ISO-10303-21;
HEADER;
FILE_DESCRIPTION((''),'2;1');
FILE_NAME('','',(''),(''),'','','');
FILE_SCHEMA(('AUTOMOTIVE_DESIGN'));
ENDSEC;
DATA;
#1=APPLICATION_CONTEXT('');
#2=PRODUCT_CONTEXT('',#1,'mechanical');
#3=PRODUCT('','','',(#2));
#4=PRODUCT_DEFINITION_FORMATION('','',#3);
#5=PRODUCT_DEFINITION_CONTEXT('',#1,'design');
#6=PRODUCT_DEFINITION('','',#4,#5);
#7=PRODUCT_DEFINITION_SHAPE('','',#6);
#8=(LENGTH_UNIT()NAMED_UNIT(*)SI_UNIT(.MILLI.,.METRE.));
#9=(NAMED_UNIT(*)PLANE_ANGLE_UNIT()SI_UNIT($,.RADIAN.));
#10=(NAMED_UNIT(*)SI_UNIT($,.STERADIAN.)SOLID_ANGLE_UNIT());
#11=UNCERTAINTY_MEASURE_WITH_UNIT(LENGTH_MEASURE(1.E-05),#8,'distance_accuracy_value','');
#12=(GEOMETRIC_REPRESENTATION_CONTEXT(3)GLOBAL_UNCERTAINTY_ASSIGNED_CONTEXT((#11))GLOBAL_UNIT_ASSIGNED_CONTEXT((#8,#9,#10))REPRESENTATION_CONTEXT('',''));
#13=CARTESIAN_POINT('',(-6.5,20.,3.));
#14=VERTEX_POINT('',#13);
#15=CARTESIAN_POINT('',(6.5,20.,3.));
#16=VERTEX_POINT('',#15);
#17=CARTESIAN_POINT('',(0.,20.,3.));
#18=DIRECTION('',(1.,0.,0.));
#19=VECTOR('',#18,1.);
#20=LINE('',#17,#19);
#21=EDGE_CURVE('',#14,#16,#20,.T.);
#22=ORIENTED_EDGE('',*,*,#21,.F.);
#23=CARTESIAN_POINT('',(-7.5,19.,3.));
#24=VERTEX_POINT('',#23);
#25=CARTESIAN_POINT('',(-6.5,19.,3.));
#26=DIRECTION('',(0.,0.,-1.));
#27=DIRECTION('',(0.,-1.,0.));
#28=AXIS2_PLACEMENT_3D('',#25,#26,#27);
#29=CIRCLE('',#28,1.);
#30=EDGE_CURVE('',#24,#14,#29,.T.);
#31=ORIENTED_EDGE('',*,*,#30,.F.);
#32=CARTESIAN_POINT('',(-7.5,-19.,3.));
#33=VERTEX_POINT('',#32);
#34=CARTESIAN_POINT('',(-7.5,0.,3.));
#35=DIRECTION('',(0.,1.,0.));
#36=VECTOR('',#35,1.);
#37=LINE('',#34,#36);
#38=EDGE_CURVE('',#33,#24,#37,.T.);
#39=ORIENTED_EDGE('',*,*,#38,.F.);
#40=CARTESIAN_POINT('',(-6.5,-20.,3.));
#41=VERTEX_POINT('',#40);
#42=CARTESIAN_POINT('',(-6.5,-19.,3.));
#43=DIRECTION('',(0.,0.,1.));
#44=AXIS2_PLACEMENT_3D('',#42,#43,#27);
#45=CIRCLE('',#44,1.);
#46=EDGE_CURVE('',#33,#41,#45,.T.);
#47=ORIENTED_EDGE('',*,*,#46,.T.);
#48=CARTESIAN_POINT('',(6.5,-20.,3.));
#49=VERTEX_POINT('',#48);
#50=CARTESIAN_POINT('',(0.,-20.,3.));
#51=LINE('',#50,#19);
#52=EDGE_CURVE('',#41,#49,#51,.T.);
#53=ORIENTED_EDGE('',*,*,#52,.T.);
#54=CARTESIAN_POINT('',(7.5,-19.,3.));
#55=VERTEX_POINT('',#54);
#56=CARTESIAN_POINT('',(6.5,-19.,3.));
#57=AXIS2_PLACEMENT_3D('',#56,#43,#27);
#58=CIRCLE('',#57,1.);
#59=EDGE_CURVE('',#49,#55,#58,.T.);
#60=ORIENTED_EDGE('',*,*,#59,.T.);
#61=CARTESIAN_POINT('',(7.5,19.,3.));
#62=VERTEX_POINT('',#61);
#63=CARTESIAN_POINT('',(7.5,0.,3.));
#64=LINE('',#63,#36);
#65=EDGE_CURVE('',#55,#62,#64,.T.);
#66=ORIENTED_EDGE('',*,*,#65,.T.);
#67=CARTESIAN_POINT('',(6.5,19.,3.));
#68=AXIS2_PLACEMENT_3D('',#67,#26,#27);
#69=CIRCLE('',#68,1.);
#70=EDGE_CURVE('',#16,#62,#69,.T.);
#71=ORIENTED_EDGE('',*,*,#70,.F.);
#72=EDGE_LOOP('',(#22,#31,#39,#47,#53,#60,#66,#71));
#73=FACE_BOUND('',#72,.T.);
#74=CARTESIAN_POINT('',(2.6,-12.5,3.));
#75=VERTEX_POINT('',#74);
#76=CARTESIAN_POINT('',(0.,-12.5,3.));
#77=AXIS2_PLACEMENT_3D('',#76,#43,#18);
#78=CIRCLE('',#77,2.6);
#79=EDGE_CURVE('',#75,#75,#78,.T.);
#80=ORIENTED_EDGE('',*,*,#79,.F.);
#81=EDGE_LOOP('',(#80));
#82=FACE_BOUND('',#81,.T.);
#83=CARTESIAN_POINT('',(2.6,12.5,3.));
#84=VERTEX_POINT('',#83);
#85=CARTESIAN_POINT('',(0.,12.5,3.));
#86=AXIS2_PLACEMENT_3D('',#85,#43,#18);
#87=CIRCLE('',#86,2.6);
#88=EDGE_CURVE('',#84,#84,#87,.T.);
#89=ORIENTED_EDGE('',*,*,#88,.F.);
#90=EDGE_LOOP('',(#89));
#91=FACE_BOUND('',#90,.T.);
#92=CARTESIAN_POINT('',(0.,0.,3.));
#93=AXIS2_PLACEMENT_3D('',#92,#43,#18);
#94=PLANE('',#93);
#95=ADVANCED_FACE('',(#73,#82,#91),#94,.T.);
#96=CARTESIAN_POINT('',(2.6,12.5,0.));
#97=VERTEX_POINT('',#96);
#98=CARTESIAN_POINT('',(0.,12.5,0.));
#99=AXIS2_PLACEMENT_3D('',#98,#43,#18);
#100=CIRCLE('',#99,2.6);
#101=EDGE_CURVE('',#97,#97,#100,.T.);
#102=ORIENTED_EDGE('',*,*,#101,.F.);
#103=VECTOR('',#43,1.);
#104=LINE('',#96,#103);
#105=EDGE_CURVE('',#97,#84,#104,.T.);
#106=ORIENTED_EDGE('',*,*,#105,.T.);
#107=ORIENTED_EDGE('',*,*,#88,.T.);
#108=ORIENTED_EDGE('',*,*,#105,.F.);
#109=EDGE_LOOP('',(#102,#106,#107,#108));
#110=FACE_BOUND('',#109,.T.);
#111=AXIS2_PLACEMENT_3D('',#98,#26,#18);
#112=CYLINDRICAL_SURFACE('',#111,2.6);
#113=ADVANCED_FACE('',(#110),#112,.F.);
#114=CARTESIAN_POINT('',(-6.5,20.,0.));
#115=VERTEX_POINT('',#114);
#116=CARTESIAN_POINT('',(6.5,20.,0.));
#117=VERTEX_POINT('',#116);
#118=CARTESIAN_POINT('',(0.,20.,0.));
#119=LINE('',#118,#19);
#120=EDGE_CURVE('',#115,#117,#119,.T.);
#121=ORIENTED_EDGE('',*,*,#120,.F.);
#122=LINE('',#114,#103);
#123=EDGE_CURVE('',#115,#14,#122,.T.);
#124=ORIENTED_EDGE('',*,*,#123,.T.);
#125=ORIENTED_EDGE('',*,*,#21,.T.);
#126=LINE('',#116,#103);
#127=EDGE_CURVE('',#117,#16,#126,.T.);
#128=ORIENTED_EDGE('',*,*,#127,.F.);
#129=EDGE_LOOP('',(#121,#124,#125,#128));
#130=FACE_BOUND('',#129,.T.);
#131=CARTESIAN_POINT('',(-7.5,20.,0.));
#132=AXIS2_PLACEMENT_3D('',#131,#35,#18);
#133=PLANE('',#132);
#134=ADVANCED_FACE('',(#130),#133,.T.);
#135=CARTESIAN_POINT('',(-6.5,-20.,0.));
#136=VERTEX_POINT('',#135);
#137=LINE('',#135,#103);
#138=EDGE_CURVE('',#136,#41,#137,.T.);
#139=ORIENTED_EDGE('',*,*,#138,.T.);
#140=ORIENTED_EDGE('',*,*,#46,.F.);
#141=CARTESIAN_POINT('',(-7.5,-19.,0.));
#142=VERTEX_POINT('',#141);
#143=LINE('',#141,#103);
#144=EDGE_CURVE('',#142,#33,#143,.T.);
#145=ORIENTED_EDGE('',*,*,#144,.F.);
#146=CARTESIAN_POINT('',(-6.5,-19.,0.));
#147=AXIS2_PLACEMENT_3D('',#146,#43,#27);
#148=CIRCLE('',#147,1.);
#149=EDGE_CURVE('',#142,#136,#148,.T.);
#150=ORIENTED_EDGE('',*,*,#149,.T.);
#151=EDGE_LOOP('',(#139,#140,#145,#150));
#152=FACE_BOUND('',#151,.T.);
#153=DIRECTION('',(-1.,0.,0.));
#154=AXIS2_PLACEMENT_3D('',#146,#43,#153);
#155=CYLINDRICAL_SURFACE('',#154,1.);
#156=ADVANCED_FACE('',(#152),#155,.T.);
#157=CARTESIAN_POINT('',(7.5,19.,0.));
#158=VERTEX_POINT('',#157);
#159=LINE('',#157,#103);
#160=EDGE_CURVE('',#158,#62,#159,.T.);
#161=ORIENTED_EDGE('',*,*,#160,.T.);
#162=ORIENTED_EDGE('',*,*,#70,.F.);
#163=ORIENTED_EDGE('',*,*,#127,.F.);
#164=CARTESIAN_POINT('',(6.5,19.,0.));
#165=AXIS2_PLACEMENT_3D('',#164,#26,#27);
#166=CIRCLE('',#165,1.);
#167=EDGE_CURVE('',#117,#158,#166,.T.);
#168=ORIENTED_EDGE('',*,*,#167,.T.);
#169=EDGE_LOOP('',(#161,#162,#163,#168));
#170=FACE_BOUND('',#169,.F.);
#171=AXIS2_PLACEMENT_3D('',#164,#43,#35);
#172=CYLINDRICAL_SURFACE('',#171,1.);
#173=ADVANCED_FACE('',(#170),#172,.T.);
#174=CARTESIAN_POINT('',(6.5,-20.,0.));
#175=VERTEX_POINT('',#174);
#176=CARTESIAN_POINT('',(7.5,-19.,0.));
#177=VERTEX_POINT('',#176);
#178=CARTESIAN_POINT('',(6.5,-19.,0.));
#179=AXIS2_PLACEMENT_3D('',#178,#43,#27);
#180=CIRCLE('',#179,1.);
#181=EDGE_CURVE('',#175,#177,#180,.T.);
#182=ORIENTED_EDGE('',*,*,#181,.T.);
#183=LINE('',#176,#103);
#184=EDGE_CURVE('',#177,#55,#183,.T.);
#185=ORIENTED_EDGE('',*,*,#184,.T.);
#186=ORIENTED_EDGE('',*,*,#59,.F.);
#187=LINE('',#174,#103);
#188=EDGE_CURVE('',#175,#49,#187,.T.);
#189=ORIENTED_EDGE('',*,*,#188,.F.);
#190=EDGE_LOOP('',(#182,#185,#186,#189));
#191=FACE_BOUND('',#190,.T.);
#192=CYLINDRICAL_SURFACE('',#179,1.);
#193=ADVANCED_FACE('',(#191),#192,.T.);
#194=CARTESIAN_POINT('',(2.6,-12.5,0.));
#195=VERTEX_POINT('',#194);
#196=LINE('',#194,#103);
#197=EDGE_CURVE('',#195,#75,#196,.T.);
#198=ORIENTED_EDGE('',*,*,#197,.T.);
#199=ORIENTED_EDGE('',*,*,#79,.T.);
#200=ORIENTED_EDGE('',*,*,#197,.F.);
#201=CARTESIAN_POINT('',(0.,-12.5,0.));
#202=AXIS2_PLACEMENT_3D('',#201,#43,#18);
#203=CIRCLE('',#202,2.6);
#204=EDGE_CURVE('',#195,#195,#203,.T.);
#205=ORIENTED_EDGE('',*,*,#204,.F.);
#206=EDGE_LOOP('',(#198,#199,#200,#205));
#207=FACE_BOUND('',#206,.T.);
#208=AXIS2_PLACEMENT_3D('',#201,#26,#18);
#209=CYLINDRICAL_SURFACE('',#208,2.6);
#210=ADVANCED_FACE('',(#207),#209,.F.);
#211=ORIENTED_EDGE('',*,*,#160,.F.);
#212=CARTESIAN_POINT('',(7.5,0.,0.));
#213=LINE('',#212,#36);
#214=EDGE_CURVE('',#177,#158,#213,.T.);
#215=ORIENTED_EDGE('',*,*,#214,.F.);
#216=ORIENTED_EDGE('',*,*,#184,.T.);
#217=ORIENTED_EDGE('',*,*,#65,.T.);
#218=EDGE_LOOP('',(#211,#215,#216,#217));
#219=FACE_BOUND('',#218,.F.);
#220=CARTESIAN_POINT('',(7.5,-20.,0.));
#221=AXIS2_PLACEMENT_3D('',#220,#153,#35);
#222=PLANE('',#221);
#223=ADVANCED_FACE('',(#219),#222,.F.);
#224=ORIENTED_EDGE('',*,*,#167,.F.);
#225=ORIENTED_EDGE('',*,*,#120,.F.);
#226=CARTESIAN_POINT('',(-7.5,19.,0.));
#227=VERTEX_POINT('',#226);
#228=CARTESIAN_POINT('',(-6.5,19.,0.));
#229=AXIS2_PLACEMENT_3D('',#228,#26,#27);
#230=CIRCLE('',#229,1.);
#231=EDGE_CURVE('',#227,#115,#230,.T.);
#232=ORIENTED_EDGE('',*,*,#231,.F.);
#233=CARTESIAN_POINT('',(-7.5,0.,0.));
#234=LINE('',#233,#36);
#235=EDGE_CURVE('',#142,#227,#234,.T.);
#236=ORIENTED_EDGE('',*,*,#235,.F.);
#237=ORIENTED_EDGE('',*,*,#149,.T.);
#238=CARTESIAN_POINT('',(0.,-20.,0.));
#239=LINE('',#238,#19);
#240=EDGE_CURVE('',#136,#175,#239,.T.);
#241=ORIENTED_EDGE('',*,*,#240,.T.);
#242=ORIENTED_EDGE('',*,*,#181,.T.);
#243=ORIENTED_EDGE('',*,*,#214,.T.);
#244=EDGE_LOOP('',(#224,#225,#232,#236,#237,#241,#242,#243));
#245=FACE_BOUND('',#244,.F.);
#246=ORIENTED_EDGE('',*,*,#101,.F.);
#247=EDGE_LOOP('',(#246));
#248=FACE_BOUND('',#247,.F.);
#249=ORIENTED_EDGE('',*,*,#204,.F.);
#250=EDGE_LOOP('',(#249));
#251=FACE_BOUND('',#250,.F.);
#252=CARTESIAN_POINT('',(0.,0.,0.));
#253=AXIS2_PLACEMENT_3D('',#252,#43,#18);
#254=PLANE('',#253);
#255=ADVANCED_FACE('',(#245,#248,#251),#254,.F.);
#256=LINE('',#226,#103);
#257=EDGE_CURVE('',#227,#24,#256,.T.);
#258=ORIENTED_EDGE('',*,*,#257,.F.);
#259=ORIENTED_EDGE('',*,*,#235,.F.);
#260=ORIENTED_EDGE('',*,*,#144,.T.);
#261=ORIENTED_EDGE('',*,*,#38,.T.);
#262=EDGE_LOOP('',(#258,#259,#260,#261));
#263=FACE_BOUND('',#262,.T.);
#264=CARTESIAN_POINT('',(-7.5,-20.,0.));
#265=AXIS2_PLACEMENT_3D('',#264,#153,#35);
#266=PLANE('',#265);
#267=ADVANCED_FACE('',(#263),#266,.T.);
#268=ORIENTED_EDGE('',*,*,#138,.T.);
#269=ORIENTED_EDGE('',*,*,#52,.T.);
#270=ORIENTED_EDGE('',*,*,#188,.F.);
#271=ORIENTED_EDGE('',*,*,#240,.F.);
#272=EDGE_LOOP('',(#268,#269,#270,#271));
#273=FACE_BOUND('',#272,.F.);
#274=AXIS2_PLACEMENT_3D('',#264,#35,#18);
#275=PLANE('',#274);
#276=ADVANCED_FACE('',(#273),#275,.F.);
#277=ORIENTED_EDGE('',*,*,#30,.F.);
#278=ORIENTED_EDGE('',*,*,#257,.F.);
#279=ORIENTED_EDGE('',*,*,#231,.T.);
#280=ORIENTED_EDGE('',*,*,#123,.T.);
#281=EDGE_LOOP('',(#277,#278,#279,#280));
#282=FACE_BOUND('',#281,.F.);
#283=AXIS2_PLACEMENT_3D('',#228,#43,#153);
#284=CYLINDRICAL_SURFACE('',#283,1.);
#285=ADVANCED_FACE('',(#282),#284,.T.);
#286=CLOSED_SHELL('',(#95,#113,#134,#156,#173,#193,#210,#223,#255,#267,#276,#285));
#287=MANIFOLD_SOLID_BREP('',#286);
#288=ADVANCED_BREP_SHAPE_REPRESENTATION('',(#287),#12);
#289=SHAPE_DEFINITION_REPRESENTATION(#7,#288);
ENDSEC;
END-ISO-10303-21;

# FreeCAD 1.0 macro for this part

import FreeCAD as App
import Part
import Sketcher

V = App.Vector
Q = App.Units.Quantity


def edges_at(feature, points):
    """Names of the edges that pass closest to the given points."""
    edges = feature.Shape.Edges
    near = lambda p: min(range(len(edges)), key=lambda i: edges[i].distToShape(Part.Vertex(*p))[0])
    return sorted({f"Edge{near(p) + 1}" for p in points})

doc = App.newDocument("Part")
body = doc.addObject("PartDesign::Body", "Body")

# Sketch on XY plane
sketch1 = body.newObject("Sketcher::SketchObject", "Sketch")
sketch1.AttachmentSupport = (doc.getObject("XY_Plane"), [""])
sketch1.MapMode = "FlatFace"
sketch1.addGeometry([
    Part.LineSegment(V(-7.5, 20, 0), V(-7.5, -20, 0)),  # 0
    Part.LineSegment(V(-7.5, -20, 0), V(7.5, -20, 0)),  # 1
    Part.LineSegment(V(7.5, -20, 0), V(7.5, 20, 0)),  # 2
    Part.LineSegment(V(7.5, 20, 0), V(-7.5, 20, 0)),  # 3
    Part.Circle(V(0, -12.5, 0), V(0, 0, 1), 2.6),  # 4
    Part.Circle(V(0, 12.5, 0), V(0, 0, 1), 2.6),  # 5
], False)
sketch1.addConstraint([
    Sketcher.Constraint("Coincident", 0, 2, 1, 1),
    Sketcher.Constraint("Coincident", 1, 2, 2, 1),
    Sketcher.Constraint("Coincident", 2, 2, 3, 1),
    Sketcher.Constraint("Coincident", 3, 2, 0, 1),
    Sketcher.Constraint("Vertical", 0),
    Sketcher.Constraint("Horizontal", 1),
    Sketcher.Constraint("Vertical", 2),
    Sketcher.Constraint("Horizontal", 3),
    Sketcher.Constraint("Equal", 4, 5),
    Sketcher.Constraint("Symmetric", 4, 3, 5, 3, -1, 1),
    Sketcher.Constraint("Symmetric", 0, 2, 2, 2, -1, 1),
    Sketcher.Constraint("PointOnObject", 4, 3, -2),
    Sketcher.Constraint("Diameter", 4, Q("5.2 mm")),
    Sketcher.Constraint("DistanceX", 1, 1, 1, 2, Q("15 mm")),
    Sketcher.Constraint("DistanceY", 0, 2, 0, 1, Q("40 mm")),
    Sketcher.Constraint("DistanceY", 4, 3, 5, 3, Q("25 mm")),
])
pad1 = body.newObject("PartDesign::Pad", "Pad")
pad1.Profile = sketch1
pad1.Length = 3
doc.recompute()

fillet = body.newObject("PartDesign::Fillet", "Fillet")
fillet.Base = (pad1, edges_at(pad1, [
    (7.5, 20, 1.5),
    (-7.5, 20, 1.5),
    (7.5, -20, 1.5),
    (-7.5, -20, 1.5),
]))
fillet.Radius = 1

doc.recompute()
